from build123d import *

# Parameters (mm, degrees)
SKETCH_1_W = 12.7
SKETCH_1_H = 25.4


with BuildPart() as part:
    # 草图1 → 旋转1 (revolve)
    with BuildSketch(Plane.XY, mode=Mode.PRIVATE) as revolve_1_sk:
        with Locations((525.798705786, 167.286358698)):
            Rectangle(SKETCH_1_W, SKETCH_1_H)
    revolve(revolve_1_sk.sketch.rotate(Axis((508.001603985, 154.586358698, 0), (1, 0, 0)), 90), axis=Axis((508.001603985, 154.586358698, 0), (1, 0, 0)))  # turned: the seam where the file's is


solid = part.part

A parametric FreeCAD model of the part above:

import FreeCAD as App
import Part
import Sketcher
Q = App.Units.Quantity


def add_polygon(sketch, points):
    """Adds a closed chain of lines whose ends are joined by coincident constraints."""
    first, n = sketch.GeometryCount, len(points)
    for a, b in zip(points, points[1:] + points[:1]):
        sketch.addGeometry(Part.LineSegment(App.Vector(*a, 0), App.Vector(*b, 0)), False)
    for i in range(n):
        sketch.addConstraint(Sketcher.Constraint("Coincident", first + i, 2, first + (i + 1) % n, 1))

doc = App.newDocument("Part")
body = doc.addObject("PartDesign::Body", "Body")

# Sketch on XY plane
sketch1 = doc.addObject("Sketcher::SketchObject", "Sketch")
body.addObject(sketch1)
sketch1.AttachmentSupport = (doc.XY_Plane, [""])
sketch1.MapMode = "FlatFace"
add_polygon(sketch1, [(519.448706, 179.986359), (519.448706, 154.586359), (532.148706, 154.586359), (532.148706, 179.986359)])  # lines 0-3
sketch1.addGeometry(Part.LineSegment(App.Vector(519.448706, 154.586359, 0), App.Vector(532.148706, 154.586359, 0)), True)  # axis
sketch1.addConstraint([
    Sketcher.Constraint("Vertical", 0),
    Sketcher.Constraint("Horizontal", 1),
    Sketcher.Constraint("Vertical", 2),
    Sketcher.Constraint("Horizontal", 3),
    Sketcher.Constraint("Horizontal", 4),
    Sketcher.Constraint("Coincident", 4, 1, 0, 2),
    Sketcher.Constraint("Vertical", 2, 2, 4, 2),
    Sketcher.Constraint("DistanceY", 0, 2, 0, 1, Q("1 in")),
    Sketcher.Constraint("DistanceX", 1, 1, 1, 2, Q("0.5 in")),
    Sketcher.Constraint("DistanceY", -1, 1, 0, 2, 154.586359),
    Sketcher.Constraint("DistanceX", -1, 1, 0, 2, 519.448706),
])
revolution = doc.addObject("PartDesign::Revolution", "Revolution")
body.addObject(revolution)
revolution.Profile = sketch1
revolution.ReferenceAxis = (sketch1, ["Axis0"])
revolution.Angle = 360

doc.recompute()
